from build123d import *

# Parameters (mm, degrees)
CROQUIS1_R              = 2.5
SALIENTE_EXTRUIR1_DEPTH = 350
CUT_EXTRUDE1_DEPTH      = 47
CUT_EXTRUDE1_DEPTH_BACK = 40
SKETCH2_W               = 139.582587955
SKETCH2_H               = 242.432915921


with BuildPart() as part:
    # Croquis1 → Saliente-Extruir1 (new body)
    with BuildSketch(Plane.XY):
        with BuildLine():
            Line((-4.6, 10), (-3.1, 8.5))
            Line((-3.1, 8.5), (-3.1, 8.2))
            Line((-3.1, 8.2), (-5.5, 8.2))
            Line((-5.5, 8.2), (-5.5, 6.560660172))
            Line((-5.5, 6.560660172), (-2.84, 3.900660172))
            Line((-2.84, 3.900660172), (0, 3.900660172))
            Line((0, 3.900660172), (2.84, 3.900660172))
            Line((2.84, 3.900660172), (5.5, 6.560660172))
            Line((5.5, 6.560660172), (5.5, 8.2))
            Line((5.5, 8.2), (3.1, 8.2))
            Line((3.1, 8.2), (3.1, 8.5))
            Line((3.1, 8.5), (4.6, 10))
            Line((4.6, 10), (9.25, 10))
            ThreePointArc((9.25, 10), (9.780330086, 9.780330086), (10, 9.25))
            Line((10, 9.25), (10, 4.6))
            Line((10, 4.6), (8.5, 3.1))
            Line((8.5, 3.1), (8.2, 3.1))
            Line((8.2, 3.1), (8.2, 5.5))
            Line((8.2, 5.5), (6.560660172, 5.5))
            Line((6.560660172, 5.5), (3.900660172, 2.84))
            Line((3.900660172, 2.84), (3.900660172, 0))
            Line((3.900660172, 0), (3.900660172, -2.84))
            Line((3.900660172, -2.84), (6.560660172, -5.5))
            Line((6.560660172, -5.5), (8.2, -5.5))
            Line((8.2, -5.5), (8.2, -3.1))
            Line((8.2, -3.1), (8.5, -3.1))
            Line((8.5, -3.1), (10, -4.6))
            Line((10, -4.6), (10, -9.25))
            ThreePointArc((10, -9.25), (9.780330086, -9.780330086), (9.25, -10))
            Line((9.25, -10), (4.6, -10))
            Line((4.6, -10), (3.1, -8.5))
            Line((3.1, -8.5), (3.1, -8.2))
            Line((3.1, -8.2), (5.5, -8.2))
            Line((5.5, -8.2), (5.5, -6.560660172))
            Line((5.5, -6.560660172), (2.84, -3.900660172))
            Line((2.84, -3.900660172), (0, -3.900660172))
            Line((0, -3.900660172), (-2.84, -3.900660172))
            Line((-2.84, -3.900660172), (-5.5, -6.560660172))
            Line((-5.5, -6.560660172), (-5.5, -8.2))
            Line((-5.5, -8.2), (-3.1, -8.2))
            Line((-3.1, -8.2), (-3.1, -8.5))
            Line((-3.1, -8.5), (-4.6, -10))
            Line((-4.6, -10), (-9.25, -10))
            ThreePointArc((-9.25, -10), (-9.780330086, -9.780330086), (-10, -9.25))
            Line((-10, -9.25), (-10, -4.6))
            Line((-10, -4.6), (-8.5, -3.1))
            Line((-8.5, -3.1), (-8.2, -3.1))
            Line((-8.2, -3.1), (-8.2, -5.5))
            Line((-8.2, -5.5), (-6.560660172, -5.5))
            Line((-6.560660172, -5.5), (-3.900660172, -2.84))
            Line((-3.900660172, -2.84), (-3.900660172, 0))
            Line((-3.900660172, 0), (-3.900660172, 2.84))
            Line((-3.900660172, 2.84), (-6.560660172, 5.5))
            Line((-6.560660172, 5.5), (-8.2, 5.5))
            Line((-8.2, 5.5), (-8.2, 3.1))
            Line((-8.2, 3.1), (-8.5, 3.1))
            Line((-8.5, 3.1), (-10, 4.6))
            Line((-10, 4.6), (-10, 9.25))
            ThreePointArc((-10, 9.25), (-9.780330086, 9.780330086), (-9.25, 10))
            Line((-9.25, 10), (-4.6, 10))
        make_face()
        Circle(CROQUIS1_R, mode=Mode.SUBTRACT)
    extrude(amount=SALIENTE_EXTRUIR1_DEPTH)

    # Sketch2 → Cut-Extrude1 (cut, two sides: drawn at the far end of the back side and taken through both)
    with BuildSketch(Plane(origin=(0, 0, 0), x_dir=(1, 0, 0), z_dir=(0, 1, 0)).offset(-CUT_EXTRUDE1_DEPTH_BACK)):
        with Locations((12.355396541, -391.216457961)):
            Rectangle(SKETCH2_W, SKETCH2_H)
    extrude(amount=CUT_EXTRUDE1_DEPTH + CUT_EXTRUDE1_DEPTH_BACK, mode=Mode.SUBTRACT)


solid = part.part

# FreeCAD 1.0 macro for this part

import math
import FreeCAD as App
import Part
import Sketcher
from FreeCAD import Vector

doc = App.newDocument("Part")
params = doc.addObject("Spreadsheet::Sheet", "Params")
for row, (alias, value) in enumerate([
    ("sketch1_diameter", "5 mm"),
    ("sketch1_radius", "0.75 mm"),
    ("sketch1_width", "0.3 mm"),
    ("sketch1_width2", "2.4 mm"),
    ("sketch1_width3", "4.65 mm"),
    ("pad1_length", "350 mm"),
], start=1):
    params.set(f"A{row}", alias)
    params.set(f"B{row}", "=" + value)
    params.setAlias(f"B{row}", alias)

body = doc.addObject("PartDesign::Body", "Body")

# Sketch on XY plane
sketch1 = body.newObject("Sketcher::SketchObject", "Sketch")
sketch1.AttachmentSupport = (doc.getObject("XY_Plane"), [""])
sketch1.MapMode = "FlatFace"
sketch1.addGeometry(Part.LineSegment(Vector(-3.1, 8.5, 0), Vector(-4.6, 10, 0)), False)
sketch1.addGeometry(Part.LineSegment(Vector(-4.6, 10, 0), Vector(-9.25, 10, 0)), False)
sketch1.addGeometry(Part.ArcOfCircle(Part.Circle(Vector(-9.25, 9.25, 0), Vector(0, 0, 1), 0.75), math.radians(90), math.radians(180)), False)
sketch1.addGeometry(Part.LineSegment(Vector(-10, 9.25, 0), Vector(-10, 4.6, 0)), False)
sketch1.addGeometry(Part.LineSegment(Vector(-10, 4.6, 0), Vector(-8.5, 3.1, 0)), False)
sketch1.addGeometry(Part.LineSegment(Vector(-8.5, 3.1, 0), Vector(-8.2, 3.1, 0)), False)
sketch1.addGeometry(Part.LineSegment(Vector(-8.2, 3.1, 0), Vector(-8.2, 5.5, 0)), False)
sketch1.addGeometry(Part.LineSegment(Vector(-8.2, 5.5, 0), Vector(-6.56, 5.5, 0)), False)
sketch1.addGeometry(Part.LineSegment(Vector(-6.56, 5.5, 0), Vector(-3.9, 2.84, 0)), False)
sketch1.addGeometry(Part.LineSegment(Vector(-3.9, 2.84, 0), Vector(-3.9, -2.84, 0)), False)
sketch1.addGeometry(Part.LineSegment(Vector(-3.9, -2.84, 0), Vector(-6.56, -5.5, 0)), False)
sketch1.addGeometry(Part.LineSegment(Vector(-6.56, -5.5, 0), Vector(-8.2, -5.5, 0)), False)
sketch1.addGeometry(Part.LineSegment(Vector(-8.2, -5.5, 0), Vector(-8.2, -3.1, 0)), False)
sketch1.addGeometry(Part.LineSegment(Vector(-8.2, -3.1, 0), Vector(-8.5, -3.1, 0)), False)
sketch1.addGeometry(Part.LineSegment(Vector(-8.5, -3.1, 0), Vector(-10, -4.6, 0)), False)
sketch1.addGeometry(Part.LineSegment(Vector(-10, -4.6, 0), Vector(-10, -9.25, 0)), False)
sketch1.addGeometry(Part.ArcOfCircle(Part.Circle(Vector(-9.25, -9.25, 0), Vector(0, 0, 1), 0.75), math.radians(180), math.radians(270)), False)
sketch1.addGeometry(Part.LineSegment(Vector(-9.25, -10, 0), Vector(-4.6, -10, 0)), False)
sketch1.addGeometry(Part.LineSegment(Vector(-4.6, -10, 0), Vector(-3.1, -8.5, 0)), False)
sketch1.addGeometry(Part.LineSegment(Vector(-3.1, -8.5, 0), Vector(-3.1, -8.2, 0)), False)
sketch1.addGeometry(Part.LineSegment(Vector(-3.1, -8.2, 0), Vector(-5.5, -8.2, 0)), False)
sketch1.addGeometry(Part.LineSegment(Vector(-5.5, -8.2, 0), Vector(-5.5, -6.56, 0)), False)
sketch1.addGeometry(Part.LineSegment(Vector(-5.5, -6.56, 0), Vector(-2.84, -3.9, 0)), False)
sketch1.addGeometry(Part.LineSegment(Vector(-2.84, -3.9, 0), Vector(2.84, -3.9, 0)), False)
sketch1.addGeometry(Part.LineSegment(Vector(2.84, -3.9, 0), Vector(5.5, -6.56, 0)), False)
sketch1.addGeometry(Part.LineSegment(Vector(5.5, -6.56, 0), Vector(5.5, -8.2, 0)), False)
sketch1.addGeometry(Part.LineSegment(Vector(5.5, -8.2, 0), Vector(3.1, -8.2, 0)), False)
sketch1.addGeometry(Part.LineSegment(Vector(3.1, -8.2, 0), Vector(3.1, -8.5, 0)), False)
sketch1.addGeometry(Part.LineSegment(Vector(3.1, -8.5, 0), Vector(4.6, -10, 0)), False)
sketch1.addGeometry(Part.LineSegment(Vector(4.6, -10, 0), Vector(9.25, -10, 0)), False)
sketch1.addGeometry(Part.ArcOfCircle(Part.Circle(Vector(9.25, -9.25, 0), Vector(0, 0, 1), 0.75), math.radians(-90), math.radians(0)), False)
sketch1.addGeometry(Part.LineSegment(Vector(10, -9.25, 0), Vector(10, -4.6, 0)), False)
sketch1.addGeometry(Part.LineSegment(Vector(10, -4.6, 0), Vector(8.5, -3.1, 0)), False)
sketch1.addGeometry(Part.LineSegment(Vector(8.5, -3.1, 0), Vector(8.2, -3.1, 0)), False)
sketch1.addGeometry(Part.LineSegment(Vector(8.2, -3.1, 0), Vector(8.2, -5.5, 0)), False)
sketch1.addGeometry(Part.LineSegment(Vector(8.2, -5.5, 0), Vector(6.56, -5.5, 0)), False)
sketch1.addGeometry(Part.LineSegment(Vector(6.56, -5.5, 0), Vector(3.9, -2.84, 0)), False)
sketch1.addGeometry(Part.LineSegment(Vector(3.9, -2.84, 0), Vector(3.9, 2.84, 0)), False)
sketch1.addGeometry(Part.LineSegment(Vector(3.9, 2.84, 0), Vector(6.56, 5.5, 0)), False)
sketch1.addGeometry(Part.LineSegment(Vector(6.56, 5.5, 0), Vector(8.2, 5.5, 0)), False)
sketch1.addGeometry(Part.LineSegment(Vector(8.2, 5.5, 0), Vector(8.2, 3.1, 0)), False)
sketch1.addGeometry(Part.LineSegment(Vector(8.2, 3.1, 0), Vector(8.5, 3.1, 0)), False)
sketch1.addGeometry(Part.LineSegment(Vector(8.5, 3.1, 0), Vector(10, 4.6, 0)), False)
sketch1.addGeometry(Part.LineSegment(Vector(10, 4.6, 0), Vector(10, 9.25, 0)), False)
sketch1.addGeometry(Part.ArcOfCircle(Part.Circle(Vector(9.25, 9.25, 0), Vector(0, 0, 1), 0.75), math.radians(0), math.radians(90)), False)
sketch1.addGeometry(Part.LineSegment(Vector(9.25, 10, 0), Vector(4.6, 10, 0)), False)
sketch1.addGeometry(Part.LineSegment(Vector(4.6, 10, 0), Vector(3.1, 8.5, 0)), False)
sketch1.addGeometry(Part.LineSegment(Vector(3.1, 8.5, 0), Vector(3.1, 8.2, 0)), False)
sketch1.addGeometry(Part.LineSegment(Vector(3.1, 8.2, 0), Vector(5.5, 8.2, 0)), False)
sketch1.addGeometry(Part.LineSegment(Vector(5.5, 8.2, 0), Vector(5.5, 6.56, 0)), False)
sketch1.addGeometry(Part.LineSegment(Vector(5.5, 6.56, 0), Vector(2.84, 3.9, 0)), False)
sketch1.addGeometry(Part.LineSegment(Vector(2.84, 3.9, 0), Vector(-2.84, 3.9, 0)), False)
sketch1.addGeometry(Part.LineSegment(Vector(-2.84, 3.9, 0), Vector(-5.5, 6.56, 0)), False)
sketch1.addGeometry(Part.LineSegment(Vector(-5.5, 6.56, 0), Vector(-5.5, 8.2, 0)), False)
sketch1.addGeometry(Part.LineSegment(Vector(-5.5, 8.2, 0), Vector(-3.1, 8.2, 0)), False)
sketch1.addGeometry(Part.LineSegment(Vector(-3.1, 8.2, 0), Vector(-3.1, 8.5, 0)), False)
sketch1.addGeometry(Part.Circle(Vector(0, 0, 0), Vector(0, 0, 1), 2.5), False)
sketch1.addConstraint(Sketcher.Constraint("Coincident", 0, 2, 1, 1))
sketch1.addConstraint(Sketcher.Constraint("Tangent", 1, 2, 2, 1))
sketch1.addConstraint(Sketcher.Constraint("Tangent", 2, 2, 3, 1))
sketch1.addConstraint(Sketcher.Constraint("Coincident", 3, 2, 4, 1))
sketch1.addConstraint(Sketcher.Constraint("Coincident", 4, 2, 5, 1))
sketch1.addConstraint(Sketcher.Constraint("Coincident", 5, 2, 6, 1))
sketch1.addConstraint(Sketcher.Constraint("Coincident", 6, 2, 7, 1))
sketch1.addConstraint(Sketcher.Constraint("Coincident", 7, 2, 8, 1))
sketch1.addConstraint(Sketcher.Constraint("Coincident", 8, 2, 9, 1))
sketch1.addConstraint(Sketcher.Constraint("Coincident", 9, 2, 10, 1))
sketch1.addConstraint(Sketcher.Constraint("Coincident", 10, 2, 11, 1))
sketch1.addConstraint(Sketcher.Constraint("Coincident", 11, 2, 12, 1))
sketch1.addConstraint(Sketcher.Constraint("Coincident", 12, 2, 13, 1))
sketch1.addConstraint(Sketcher.Constraint("Coincident", 13, 2, 14, 1))
sketch1.addConstraint(Sketcher.Constraint("Coincident", 14, 2, 15, 1))
sketch1.addConstraint(Sketcher.Constraint("Tangent", 15, 2, 16, 1))
sketch1.addConstraint(Sketcher.Constraint("Tangent", 16, 2, 17, 1))
sketch1.addConstraint(Sketcher.Constraint("Coincident", 17, 2, 18, 1))
sketch1.addConstraint(Sketcher.Constraint("Coincident", 18, 2, 19, 1))
sketch1.addConstraint(Sketcher.Constraint("Coincident", 19, 2, 20, 1))
sketch1.addConstraint(Sketcher.Constraint("Coincident", 20, 2, 21, 1))
sketch1.addConstraint(Sketcher.Constraint("Coincident", 21, 2, 22, 1))
sketch1.addConstraint(Sketcher.Constraint("Coincident", 22, 2, 23, 1))
sketch1.addConstraint(Sketcher.Constraint("Coincident", 23, 2, 24, 1))
sketch1.addConstraint(Sketcher.Constraint("Coincident", 24, 2, 25, 1))
sketch1.addConstraint(Sketcher.Constraint("Coincident", 25, 2, 26, 1))
sketch1.addConstraint(Sketcher.Constraint("Coincident", 26, 2, 27, 1))
sketch1.addConstraint(Sketcher.Constraint("Coincident", 27, 2, 28, 1))
sketch1.addConstraint(Sketcher.Constraint("Coincident", 28, 2, 29, 1))
sketch1.addConstraint(Sketcher.Constraint("Tangent", 29, 2, 30, 1))
sketch1.addConstraint(Sketcher.Constraint("Tangent", 30, 2, 31, 1))
sketch1.addConstraint(Sketcher.Constraint("Coincident", 31, 2, 32, 1))
sketch1.addConstraint(Sketcher.Constraint("Coincident", 32, 2, 33, 1))
sketch1.addConstraint(Sketcher.Constraint("Coincident", 33, 2, 34, 1))
sketch1.addConstraint(Sketcher.Constraint("Coincident", 34, 2, 35, 1))
sketch1.addConstraint(Sketcher.Constraint("Coincident", 35, 2, 36, 1))
sketch1.addConstraint(Sketcher.Constraint("Coincident", 36, 2, 37, 1))
sketch1.addConstraint(Sketcher.Constraint("Coincident", 37, 2, 38, 1))
sketch1.addConstraint(Sketcher.Constraint("Coincident", 38, 2, 39, 1))
sketch1.addConstraint(Sketcher.Constraint("Coincident", 39, 2, 40, 1))
sketch1.addConstraint(Sketcher.Constraint("Coincident", 40, 2, 41, 1))
sketch1.addConstraint(Sketcher.Constraint("Coincident", 41, 2, 42, 1))
sketch1.addConstraint(Sketcher.Constraint("Coincident", 42, 2, 43, 1))
sketch1.addConstraint(Sketcher.Constraint("Tangent", 43, 2, 44, 1))
sketch1.addConstraint(Sketcher.Constraint("Tangent", 44, 2, 45, 1))
sketch1.addConstraint(Sketcher.Constraint("Coincident", 45, 2, 46, 1))
sketch1.addConstraint(Sketcher.Constraint("Coincident", 46, 2, 47, 1))
sketch1.addConstraint(Sketcher.Constraint("Coincident", 47, 2, 48, 1))
sketch1.addConstraint(Sketcher.Constraint("Coincident", 48, 2, 49, 1))
sketch1.addConstraint(Sketcher.Constraint("Coincident", 49, 2, 50, 1))
sketch1.addConstraint(Sketcher.Constraint("Coincident", 50, 2, 51, 1))
sketch1.addConstraint(Sketcher.Constraint("Coincident", 51, 2, 52, 1))
sketch1.addConstraint(Sketcher.Constraint("Coincident", 52, 2, 53, 1))
sketch1.addConstraint(Sketcher.Constraint("Coincident", 53, 2, 54, 1))
sketch1.addConstraint(Sketcher.Constraint("Coincident", 54, 2, 55, 1))
sketch1.addConstraint(Sketcher.Constraint("Coincident", 55, 2, 0, 1))
sketch1.addConstraint(Sketcher.Constraint("Horizontal", 1))
sketch1.addConstraint(Sketcher.Constraint("Vertical", 3))
sketch1.addConstraint(Sketcher.Constraint("Horizontal", 5))
sketch1.addConstraint(Sketcher.Constraint("Vertical", 6))
sketch1.addConstraint(Sketcher.Constraint("Horizontal", 7))
sketch1.addConstraint(Sketcher.Constraint("Vertical", 9))
sketch1.addConstraint(Sketcher.Constraint("Horizontal", 11))
sketch1.addConstraint(Sketcher.Constraint("Vertical", 12))
sketch1.addConstraint(Sketcher.Constraint("Horizontal", 13))
sketch1.addConstraint(Sketcher.Constraint("Vertical", 15))
sketch1.addConstraint(Sketcher.Constraint("Horizontal", 17))
sketch1.addConstraint(Sketcher.Constraint("Vertical", 19))
sketch1.addConstraint(Sketcher.Constraint("Horizontal", 20))
sketch1.addConstraint(Sketcher.Constraint("Vertical", 21))
sketch1.addConstraint(Sketcher.Constraint("Horizontal", 23))
sketch1.addConstraint(Sketcher.Constraint("Vertical", 25))
sketch1.addConstraint(Sketcher.Constraint("Horizontal", 26))
sketch1.addConstraint(Sketcher.Constraint("Vertical", 27))
sketch1.addConstraint(Sketcher.Constraint("Horizontal", 29))
sketch1.addConstraint(Sketcher.Constraint("Vertical", 31))
sketch1.addConstraint(Sketcher.Constraint("Horizontal", 33))
sketch1.addConstraint(Sketcher.Constraint("Vertical", 34))
sketch1.addConstraint(Sketcher.Constraint("Horizontal", 35))
sketch1.addConstraint(Sketcher.Constraint("Vertical", 37))
sketch1.addConstraint(Sketcher.Constraint("Horizontal", 39))
sketch1.addConstraint(Sketcher.Constraint("Vertical", 40))
sketch1.addConstraint(Sketcher.Constraint("Horizontal", 41))
sketch1.addConstraint(Sketcher.Constraint("Vertical", 43))
sketch1.addConstraint(Sketcher.Constraint("Horizontal", 45))
sketch1.addConstraint(Sketcher.Constraint("Vertical", 47))
sketch1.addConstraint(Sketcher.Constraint("Horizontal", 48))
sketch1.addConstraint(Sketcher.Constraint("Vertical", 49))
sketch1.addConstraint(Sketcher.Constraint("Horizontal", 51))
sketch1.addConstraint(Sketcher.Constraint("Vertical", 53))
sketch1.addConstraint(Sketcher.Constraint("Horizontal", 54))
sketch1.addConstraint(Sketcher.Constraint("Vertical", 55))
sketch1.addConstraint(Sketcher.Constraint("Coincident", 56, 3, -1, 1))
sketch1.addConstraint(Sketcher.Constraint("Equal", 2, 16))
sketch1.addConstraint(Sketcher.Constraint("Equal", 16, 30))
sketch1.addConstraint(Sketcher.Constraint("Equal", 30, 44))
sketch1.addConstraint(Sketcher.Constraint("Symmetric", 2, 3, 30, 3, -1, 1))
sketch1.addConstraint(Sketcher.Constraint("Symmetric", 16, 3, 44, 3, -1, 1))
sketch1.addConstraint(Sketcher.Constraint("Symmetric", 4, 2, 32, 2, -1, 1))
sketch1.addConstraint(Sketcher.Constraint("Symmetric", 6, 2, 34, 2, -1, 1))
sketch1.addConstraint(Sketcher.Constraint("Symmetric", 8, 2, 36, 2, -1, 1))
sketch1.addConstraint(Sketcher.Constraint("Symmetric", 10, 2, 38, 2, -1, 1))
sketch1.addConstraint(Sketcher.Constraint("Symmetric", 12, 2, 40, 2, -1, 1))
sketch1.addConstraint(Sketcher.Constraint("Symmetric", 18, 2, 46, 2, -1, 1))
sketch1.addConstraint(Sketcher.Constraint("Symmetric", 20, 2, 48, 2, -1, 1))
sketch1.addConstraint(Sketcher.Constraint("Symmetric", 22, 2, 50, 2, -1, 1))
sketch1.addConstraint(Sketcher.Constraint("Symmetric", 24, 2, 52, 2, -1, 1))
sketch1.addConstraint(Sketcher.Constraint("Symmetric", 26, 2, 54, 2, -1, 1))
sketch1.addConstraint(Sketcher.Constraint("Symmetric", 16, 3, 30, 3, -2))
sketch1.addConstraint(Sketcher.Constraint("Symmetric", 21, 2, 24, 2, -2))
sketch1.addConstraint(Sketcher.Constraint("Symmetric", 19, 2, 26, 2, -2))
sketch1.addConstraint(Sketcher.Constraint("Symmetric", 13, 2, 32, 2, -2))
sketch1.addConstraint(Sketcher.Constraint("Symmetric", 11, 2, 34, 2, -2))
sketch1.addConstraint(Sketcher.Constraint("Parallel", 0, 4))
sketch1.addConstraint(Sketcher.Constraint("Parallel", 4, 8))
sketch1.addConstraint(Sketcher.Constraint("Perpendicular", 8, 10))
sketch1.addConstraint(Sketcher.Constraint("Parallel", 10, 14))
sketch1.addConstraint(Sketcher.Constraint("Parallel", 14, 18))
sketch1.addConstraint(Sketcher.Constraint("Parallel", 18, 22))
sketch1.addConstraint(Sketcher.Constraint("Perpendicular", 22, 24))
sketch1.addConstraint(Sketcher.Constraint("Parallel", 24, 28))
sketch1.addConstraint(Sketcher.Constraint("Parallel", 28, 32))
sketch1.addConstraint(Sketcher.Constraint("Parallel", 32, 36))
sketch1.addConstraint(Sketcher.Constraint("Perpendicular", 36, 38))
sketch1.addConstraint(Sketcher.Constraint("Parallel", 38, 42))
sketch1.addConstraint(Sketcher.Constraint("Parallel", 42, 46))
sketch1.addConstraint(Sketcher.Constraint("Parallel", 46, 50))
sketch1.addConstraint(Sketcher.Constraint("Perpendicular", 50, 52))
sketch1.addConstraint(Sketcher.Constraint("Horizontal", 18, 2, 27, 2))
sketch1.addConstraint(Sketcher.Constraint("Horizontal", 14, 2, 31, 2))
sketch1.addConstraint(Sketcher.Constraint("Horizontal", 9, 2, 36, 2))
sketch1.addConstraint(Sketcher.Constraint("Horizontal", 3, 2, 42, 2))
sketch1.addConstraint(Sketcher.Constraint("Horizontal", 46, 2, 55, 2))
sketch1.addConstraint(Sketcher.Constraint("Equal", 45, 3))
sketch1.addConstraint(Sketcher.Constraint("Equal", 54, 6))
sketch1.addConstraint(Sketcher.Constraint("Equal", 51, 9))
sketch1.addConstraint(Sketcher.Constraint("Equal", 41, 19))
sketch1.addConstraint(Sketcher.Constraint("Equal", 39, 21))
sketch1.addConstraint(Sketcher.Constraint("Equal", 0, 4))
sketch1.addConstraint(Sketcher.Constraint("Equal", 10, 22))
sketch1.addConstraint(Sketcher.Constraint("Diameter", 56, 5.0))
sketch1.addConstraint(Sketcher.Constraint("Radius", 2, 0.75))
sketch1.addConstraint(Sketcher.Constraint("DistanceX", 5, 1, 5, 2, 0.3))
sketch1.addConstraint(Sketcher.Constraint("DistanceX", 20, 2, 20, 1, 2.4))
sketch1.addConstraint(Sketcher.Constraint("DistanceY", -1, 1, 0, 2, 10.0))
sketch1.addConstraint(Sketcher.Constraint("DistanceX", 1, 2, 1, 1, 4.65))
sketch1.addConstraint(Sketcher.Constraint("DistanceX", 23, 1, 23, 2, 5.68))
sketch1.addConstraint(Sketcher.Constraint("DistanceX", 4, 2, -1, 1, 8.5))
sketch1.addConstraint(Sketcher.Constraint("DistanceX", 7, 1, 7, 2, 1.63934))
sketch1.setExpression("Constraints[140]", "Params.sketch1_diameter")
sketch1.setExpression("Constraints[141]", "Params.sketch1_radius")
sketch1.setExpression("Constraints[142]", "Params.sketch1_width")
sketch1.setExpression("Constraints[143]", "Params.sketch1_width2")
sketch1.setExpression("Constraints[145]", "Params.sketch1_width3")
pad1 = body.newObject("PartDesign::Pad", "Pad")
pad1.Profile = sketch1
pad1.setExpression("Length", "Params.pad1_length")

# Sketch on XZ plane
sketch2 = body.newObject("Sketcher::SketchObject", "Sketch001")
sketch2.AttachmentSupport = (doc.getObject("XZ_Plane"), [""])
sketch2.MapMode = "FlatFace"
sketch2.addGeometry(Part.LineSegment(Vector(-57, 270, 0), Vector(-57, 512, 0)), False)
sketch2.addGeometry(Part.LineSegment(Vector(-57, 512, 0), Vector(82, 512, 0)), False)
sketch2.addGeometry(Part.LineSegment(Vector(82, 512, 0), Vector(82, 270, 0)), False)
sketch2.addGeometry(Part.LineSegment(Vector(82, 270, 0), Vector(-57, 270, 0)), False)
sketch2.addConstraint(Sketcher.Constraint("Coincident", 0, 2, 1, 1))
sketch2.addConstraint(Sketcher.Constraint("Coincident", 1, 2, 2, 1))
sketch2.addConstraint(Sketcher.Constraint("Coincident", 2, 2, 3, 1))
sketch2.addConstraint(Sketcher.Constraint("Coincident", 3, 2, 0, 1))
sketch2.addConstraint(Sketcher.Constraint("Vertical", 0))
sketch2.addConstraint(Sketcher.Constraint("Horizontal", 1))
sketch2.addConstraint(Sketcher.Constraint("Vertical", 2))
sketch2.addConstraint(Sketcher.Constraint("Horizontal", 3))
sketch2.addConstraint(Sketcher.Constraint("DistanceY", -1, 1, 2, 2, 270.0))
sketch2.addConstraint(Sketcher.Constraint("DistanceX", 1, 1, 1, 2, 139.582588))
sketch2.addConstraint(Sketcher.Constraint("DistanceY", 0, 1, 0, 2, 242.432916))
sketch2.addConstraint(Sketcher.Constraint("DistanceX", -1, 1, 1, 2, 82.146691))
pocket1 = body.newObject("PartDesign::Pocket", "Pocket")
pocket1.Profile = sketch2
pocket1.Type = "ThroughAll"
pocket1.Midplane = True

doc.recompute()
